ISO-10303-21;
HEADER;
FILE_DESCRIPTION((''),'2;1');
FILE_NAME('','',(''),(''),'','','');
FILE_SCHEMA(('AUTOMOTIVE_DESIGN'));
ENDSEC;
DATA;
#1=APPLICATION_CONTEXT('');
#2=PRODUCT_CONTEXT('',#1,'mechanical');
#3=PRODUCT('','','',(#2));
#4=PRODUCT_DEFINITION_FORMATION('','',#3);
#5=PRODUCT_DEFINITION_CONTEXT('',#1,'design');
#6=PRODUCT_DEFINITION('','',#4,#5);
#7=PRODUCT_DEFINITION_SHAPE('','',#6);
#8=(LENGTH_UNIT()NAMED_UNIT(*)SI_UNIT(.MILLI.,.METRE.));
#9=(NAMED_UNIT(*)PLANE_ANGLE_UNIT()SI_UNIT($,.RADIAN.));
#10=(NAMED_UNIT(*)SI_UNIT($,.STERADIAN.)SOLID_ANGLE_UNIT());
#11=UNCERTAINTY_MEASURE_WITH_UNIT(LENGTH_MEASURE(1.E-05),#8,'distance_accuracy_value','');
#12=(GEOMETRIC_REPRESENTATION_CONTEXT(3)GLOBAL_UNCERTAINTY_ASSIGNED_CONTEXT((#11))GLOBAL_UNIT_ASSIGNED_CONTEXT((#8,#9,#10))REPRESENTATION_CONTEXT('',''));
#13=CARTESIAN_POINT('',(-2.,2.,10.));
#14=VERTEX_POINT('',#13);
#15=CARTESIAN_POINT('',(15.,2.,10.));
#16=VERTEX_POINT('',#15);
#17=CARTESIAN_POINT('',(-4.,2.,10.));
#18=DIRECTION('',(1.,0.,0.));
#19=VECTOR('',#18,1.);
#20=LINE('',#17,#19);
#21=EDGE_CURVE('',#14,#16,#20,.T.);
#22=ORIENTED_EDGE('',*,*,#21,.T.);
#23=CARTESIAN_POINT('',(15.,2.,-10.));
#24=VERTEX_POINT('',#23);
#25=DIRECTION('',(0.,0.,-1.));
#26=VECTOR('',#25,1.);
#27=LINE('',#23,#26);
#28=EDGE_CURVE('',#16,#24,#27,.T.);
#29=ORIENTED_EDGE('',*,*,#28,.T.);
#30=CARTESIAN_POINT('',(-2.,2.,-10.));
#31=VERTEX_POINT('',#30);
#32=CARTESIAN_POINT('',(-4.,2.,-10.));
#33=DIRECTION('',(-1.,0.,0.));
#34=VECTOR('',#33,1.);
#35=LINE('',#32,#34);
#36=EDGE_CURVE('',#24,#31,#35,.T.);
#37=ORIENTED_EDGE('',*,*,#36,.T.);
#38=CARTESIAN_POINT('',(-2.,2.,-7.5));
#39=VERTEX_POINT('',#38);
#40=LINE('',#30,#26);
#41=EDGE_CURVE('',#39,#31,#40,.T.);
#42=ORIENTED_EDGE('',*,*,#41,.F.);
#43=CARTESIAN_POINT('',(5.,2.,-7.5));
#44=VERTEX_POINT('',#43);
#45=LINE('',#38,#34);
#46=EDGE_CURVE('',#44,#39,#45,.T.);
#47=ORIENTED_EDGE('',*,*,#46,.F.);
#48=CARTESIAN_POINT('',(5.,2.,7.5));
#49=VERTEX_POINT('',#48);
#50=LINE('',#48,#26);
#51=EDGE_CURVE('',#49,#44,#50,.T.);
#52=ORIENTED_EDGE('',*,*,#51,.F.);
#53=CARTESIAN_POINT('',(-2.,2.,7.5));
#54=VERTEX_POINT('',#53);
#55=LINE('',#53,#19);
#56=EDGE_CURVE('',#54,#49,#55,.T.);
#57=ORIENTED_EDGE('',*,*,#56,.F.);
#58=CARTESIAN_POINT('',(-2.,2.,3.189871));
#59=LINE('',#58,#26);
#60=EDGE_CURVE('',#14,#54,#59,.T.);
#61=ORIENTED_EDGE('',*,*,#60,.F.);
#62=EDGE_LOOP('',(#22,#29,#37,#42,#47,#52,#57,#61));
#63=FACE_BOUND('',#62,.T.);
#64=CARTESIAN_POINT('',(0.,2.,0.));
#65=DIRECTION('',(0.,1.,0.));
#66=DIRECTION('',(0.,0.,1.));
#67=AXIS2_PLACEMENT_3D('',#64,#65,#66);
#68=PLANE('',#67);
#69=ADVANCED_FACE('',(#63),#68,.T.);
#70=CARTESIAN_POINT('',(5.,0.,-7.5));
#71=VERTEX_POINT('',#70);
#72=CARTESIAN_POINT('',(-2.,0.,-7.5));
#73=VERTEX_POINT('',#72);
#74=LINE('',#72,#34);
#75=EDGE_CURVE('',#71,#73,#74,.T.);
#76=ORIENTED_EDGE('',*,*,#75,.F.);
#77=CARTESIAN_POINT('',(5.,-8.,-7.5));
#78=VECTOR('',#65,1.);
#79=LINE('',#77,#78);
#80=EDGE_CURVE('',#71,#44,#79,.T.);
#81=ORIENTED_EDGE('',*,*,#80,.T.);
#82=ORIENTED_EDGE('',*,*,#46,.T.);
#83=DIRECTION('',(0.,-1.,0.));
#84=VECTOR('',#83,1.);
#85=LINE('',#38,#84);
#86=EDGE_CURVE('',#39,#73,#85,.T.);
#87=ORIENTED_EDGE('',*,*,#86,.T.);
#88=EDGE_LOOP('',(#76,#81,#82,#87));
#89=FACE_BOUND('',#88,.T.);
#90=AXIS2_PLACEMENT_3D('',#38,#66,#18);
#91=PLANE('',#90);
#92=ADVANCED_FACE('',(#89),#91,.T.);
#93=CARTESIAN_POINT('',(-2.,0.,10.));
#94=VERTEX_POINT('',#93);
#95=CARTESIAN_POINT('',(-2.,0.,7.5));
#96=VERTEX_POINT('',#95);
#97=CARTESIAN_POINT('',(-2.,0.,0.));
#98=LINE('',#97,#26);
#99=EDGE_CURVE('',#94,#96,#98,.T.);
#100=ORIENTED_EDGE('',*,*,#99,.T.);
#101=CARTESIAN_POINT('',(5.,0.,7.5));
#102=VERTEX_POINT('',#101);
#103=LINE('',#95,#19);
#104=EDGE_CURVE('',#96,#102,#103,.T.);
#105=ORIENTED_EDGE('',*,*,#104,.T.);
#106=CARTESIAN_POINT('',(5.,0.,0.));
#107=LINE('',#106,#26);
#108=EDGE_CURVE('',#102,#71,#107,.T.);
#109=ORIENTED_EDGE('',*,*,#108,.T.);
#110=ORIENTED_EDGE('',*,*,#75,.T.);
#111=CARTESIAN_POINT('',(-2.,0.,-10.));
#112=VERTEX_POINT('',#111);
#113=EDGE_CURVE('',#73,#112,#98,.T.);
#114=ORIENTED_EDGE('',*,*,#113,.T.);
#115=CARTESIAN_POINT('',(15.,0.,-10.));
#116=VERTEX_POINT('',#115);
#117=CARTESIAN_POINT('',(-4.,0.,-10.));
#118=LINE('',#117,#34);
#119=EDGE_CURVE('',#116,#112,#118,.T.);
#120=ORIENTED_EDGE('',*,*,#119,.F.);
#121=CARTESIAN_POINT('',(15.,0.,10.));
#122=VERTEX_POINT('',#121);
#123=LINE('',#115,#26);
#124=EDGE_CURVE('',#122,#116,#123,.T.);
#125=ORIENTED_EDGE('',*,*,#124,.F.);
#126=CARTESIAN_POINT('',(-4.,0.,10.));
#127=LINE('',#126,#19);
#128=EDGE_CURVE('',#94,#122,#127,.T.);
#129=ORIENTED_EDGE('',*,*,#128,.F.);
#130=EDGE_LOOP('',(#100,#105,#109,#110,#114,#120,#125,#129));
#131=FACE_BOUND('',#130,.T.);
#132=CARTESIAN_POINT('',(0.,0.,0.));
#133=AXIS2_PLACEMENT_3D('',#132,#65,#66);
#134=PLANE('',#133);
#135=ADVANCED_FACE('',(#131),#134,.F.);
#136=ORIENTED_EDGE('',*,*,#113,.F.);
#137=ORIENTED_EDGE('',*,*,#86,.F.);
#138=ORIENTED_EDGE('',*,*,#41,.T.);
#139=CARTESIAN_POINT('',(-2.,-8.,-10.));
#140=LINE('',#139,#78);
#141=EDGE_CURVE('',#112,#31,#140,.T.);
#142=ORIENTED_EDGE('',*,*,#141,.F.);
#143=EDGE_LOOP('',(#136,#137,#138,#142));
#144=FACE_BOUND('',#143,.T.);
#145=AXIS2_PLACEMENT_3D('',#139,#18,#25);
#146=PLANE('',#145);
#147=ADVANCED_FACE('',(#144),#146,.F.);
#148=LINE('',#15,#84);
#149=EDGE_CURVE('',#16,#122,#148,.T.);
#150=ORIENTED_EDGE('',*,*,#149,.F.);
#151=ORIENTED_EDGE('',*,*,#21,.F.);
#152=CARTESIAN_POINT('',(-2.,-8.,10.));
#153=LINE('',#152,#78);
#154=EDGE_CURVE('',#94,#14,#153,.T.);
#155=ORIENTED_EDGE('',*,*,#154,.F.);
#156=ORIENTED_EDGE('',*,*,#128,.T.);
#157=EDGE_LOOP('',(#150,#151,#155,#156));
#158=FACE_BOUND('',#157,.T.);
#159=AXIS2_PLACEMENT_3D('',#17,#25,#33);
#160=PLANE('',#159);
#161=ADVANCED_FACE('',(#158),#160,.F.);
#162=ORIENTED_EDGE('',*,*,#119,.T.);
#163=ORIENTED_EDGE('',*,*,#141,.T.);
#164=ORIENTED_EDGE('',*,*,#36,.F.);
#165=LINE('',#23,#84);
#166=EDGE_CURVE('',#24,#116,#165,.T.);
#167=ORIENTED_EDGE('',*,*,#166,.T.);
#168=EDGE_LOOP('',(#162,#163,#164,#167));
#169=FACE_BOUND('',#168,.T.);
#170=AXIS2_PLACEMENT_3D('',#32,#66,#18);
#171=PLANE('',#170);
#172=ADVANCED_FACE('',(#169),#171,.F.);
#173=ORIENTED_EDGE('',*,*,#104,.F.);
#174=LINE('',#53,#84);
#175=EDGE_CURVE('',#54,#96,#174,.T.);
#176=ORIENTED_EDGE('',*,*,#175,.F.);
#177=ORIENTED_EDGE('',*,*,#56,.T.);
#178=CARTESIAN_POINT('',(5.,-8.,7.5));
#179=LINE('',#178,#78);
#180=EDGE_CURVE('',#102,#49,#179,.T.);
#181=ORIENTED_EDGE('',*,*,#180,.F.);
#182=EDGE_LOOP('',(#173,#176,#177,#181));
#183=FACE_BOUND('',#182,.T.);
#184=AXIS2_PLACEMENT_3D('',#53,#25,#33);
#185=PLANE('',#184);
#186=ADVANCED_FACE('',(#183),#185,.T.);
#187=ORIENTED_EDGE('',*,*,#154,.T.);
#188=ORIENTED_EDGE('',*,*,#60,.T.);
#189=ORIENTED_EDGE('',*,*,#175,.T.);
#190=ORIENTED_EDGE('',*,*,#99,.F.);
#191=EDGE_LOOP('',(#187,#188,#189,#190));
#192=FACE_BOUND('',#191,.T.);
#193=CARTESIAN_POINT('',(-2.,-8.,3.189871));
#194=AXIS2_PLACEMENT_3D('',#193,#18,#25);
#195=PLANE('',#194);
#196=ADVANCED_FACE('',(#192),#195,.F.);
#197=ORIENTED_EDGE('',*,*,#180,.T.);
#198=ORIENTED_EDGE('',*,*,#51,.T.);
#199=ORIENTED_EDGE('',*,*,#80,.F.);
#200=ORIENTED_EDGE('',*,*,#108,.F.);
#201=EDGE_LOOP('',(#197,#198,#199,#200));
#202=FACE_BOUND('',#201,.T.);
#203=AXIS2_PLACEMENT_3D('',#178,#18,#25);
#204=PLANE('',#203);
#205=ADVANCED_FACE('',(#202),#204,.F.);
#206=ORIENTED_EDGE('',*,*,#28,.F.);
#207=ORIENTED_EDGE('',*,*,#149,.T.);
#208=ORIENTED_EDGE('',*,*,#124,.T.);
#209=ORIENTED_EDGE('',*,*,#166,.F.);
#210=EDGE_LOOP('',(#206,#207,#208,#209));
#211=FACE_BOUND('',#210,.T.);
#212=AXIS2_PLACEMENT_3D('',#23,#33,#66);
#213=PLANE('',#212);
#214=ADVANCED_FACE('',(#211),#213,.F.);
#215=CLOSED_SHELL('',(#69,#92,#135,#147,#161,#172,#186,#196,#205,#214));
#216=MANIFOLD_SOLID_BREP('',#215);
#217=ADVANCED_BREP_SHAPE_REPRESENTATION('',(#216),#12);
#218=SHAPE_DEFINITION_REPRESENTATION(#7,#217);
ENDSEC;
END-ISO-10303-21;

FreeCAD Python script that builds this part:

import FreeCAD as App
import Part
import Sketcher
from FreeCAD import Vector

doc = App.newDocument("Part")
params = doc.addObject("Spreadsheet::Sheet", "Params")
for row, (alias, value) in enumerate([
    ("sketch1_width", "19 mm"),
    ("sketch1_width2", "2 mm"),
    ("sketch1_height", "20 mm"),
    ("sketch1_height2", "5 mm"),
    ("pad1_length", "2 mm"),
    ("sketch2_width", "5 mm"),
    ("sketch2_height", "15 mm"),
    ("pocket1_length", "10 mm"),
    ("sketch3_width", "2 mm"),
    ("sketch3_height", "20 mm"),
    ("pocket2_length", "10 mm"),
], start=1):
    params.set(f"A{row}", alias)
    params.set(f"B{row}", "=" + value)
    params.setAlias(f"B{row}", alias)

body = doc.addObject("PartDesign::Body", "Body")

# Sketch on XZ plane
sketch1 = body.newObject("Sketcher::SketchObject", "Sketch")
sketch1.AttachmentSupport = (doc.getObject("XZ_Plane"), [""])
sketch1.MapMode = "FlatFace"
sketch1.addGeometry([
    Part.LineSegment(Vector(-4, -10, 0), Vector(-4, 10, 0)),  # 0
    Part.LineSegment(Vector(-4, 10, 0), Vector(15, 10, 0)),  # 1
    Part.LineSegment(Vector(15, 10, 0), Vector(15, -10, 0)),  # 2
    Part.LineSegment(Vector(15, -10, 0), Vector(-4, -10, 0)),  # 3
    Part.LineSegment(Vector(0, 7.5, 0), Vector(-2, 7.5, 0)),  # 4
    Part.LineSegment(Vector(-2, 7.5, 0), Vector(-2, 2.5, 0)),  # 5
    Part.LineSegment(Vector(-2, 2.5, 0), Vector(0, 2.5, 0)),  # 6
    Part.LineSegment(Vector(0, 2.5, 0), Vector(0, 7.5, 0)),  # 7
    Part.LineSegment(Vector(0, -2.5, 0), Vector(-2, -2.5, 0)),  # 8
    Part.LineSegment(Vector(-2, -2.5, 0), Vector(-2, -7.5, 0)),  # 9
    Part.LineSegment(Vector(-2, -7.5, 0), Vector(0, -7.5, 0)),  # 10
    Part.LineSegment(Vector(0, -7.5, 0), Vector(0, -2.5, 0)),  # 11
], False)
sketch1.addConstraint([
    Sketcher.Constraint("Coincident", 0, 2, 1, 1),
    Sketcher.Constraint("Coincident", 1, 2, 2, 1),
    Sketcher.Constraint("Coincident", 2, 2, 3, 1),
    Sketcher.Constraint("Coincident", 3, 2, 0, 1),
    Sketcher.Constraint("Coincident", 4, 2, 5, 1),
    Sketcher.Constraint("Coincident", 5, 2, 6, 1),
    Sketcher.Constraint("Coincident", 6, 2, 7, 1),
    Sketcher.Constraint("Coincident", 7, 2, 4, 1),
    Sketcher.Constraint("Coincident", 8, 2, 9, 1),
    Sketcher.Constraint("Coincident", 9, 2, 10, 1),
    Sketcher.Constraint("Coincident", 10, 2, 11, 1),
    Sketcher.Constraint("Coincident", 11, 2, 8, 1),
    Sketcher.Constraint("Vertical", 0),
    Sketcher.Constraint("Horizontal", 1),
    Sketcher.Constraint("Vertical", 2),
    Sketcher.Constraint("Horizontal", 3),
    Sketcher.Constraint("Horizontal", 4),
    Sketcher.Constraint("Vertical", 5),
    Sketcher.Constraint("Horizontal", 6),
    Sketcher.Constraint("Vertical", 7),
    Sketcher.Constraint("Horizontal", 8),
    Sketcher.Constraint("Vertical", 9),
    Sketcher.Constraint("Horizontal", 10),
    Sketcher.Constraint("Vertical", 11),
    Sketcher.Constraint("Symmetric", 7, 2, 10, 2, -1, 1),
    Sketcher.Constraint("Symmetric", 5, 2, 8, 2, -1),
    Sketcher.Constraint("PointOnObject", 6, 2, -2),
    Sketcher.Constraint("DistanceX", 1, 1, 1, 2, 19.0),
    Sketcher.Constraint("DistanceX", 4, 2, 4, 1, 2.0),
    Sketcher.Constraint("DistanceY", 0, 1, 0, 2, 20.0),
    Sketcher.Constraint("DistanceY", 5, 2, 5, 1, 5.0),
    Sketcher.Constraint("DistanceX", 0, 2, -1, 1, 4.0),
    Sketcher.Constraint("DistanceY", -1, 1, 0, 2, 10.0),
    Sketcher.Constraint("DistanceY", 8, 2, 5, 2, 5.0),
])
sketch1.setExpression("Constraints[27]", "Params.sketch1_width")
sketch1.setExpression("Constraints[28]", "Params.sketch1_width2")
sketch1.setExpression("Constraints[29]", "Params.sketch1_height")
sketch1.setExpression("Constraints[30]", "Params.sketch1_height2")
pad1 = body.newObject("PartDesign::Pad", "Pad")
pad1.Profile = sketch1
pad1.setExpression("Length", "Params.pad1_length")
pad1.Reversed = True

# Sketch on XZ plane
sketch2 = body.newObject("Sketcher::SketchObject", "Sketch001")
sketch2.AttachmentSupport = (doc.getObject("XZ_Plane"), [""])
sketch2.MapMode = "FlatFace"
sketch2.AttachmentOffset = App.Placement(Vector(0, 0, -2), App.Rotation())
sketch2.addGeometry([
    Part.LineSegment(Vector(0, -8, 0), Vector(0, 8, 0)),
    Part.LineSegment(Vector(0, 8, 0), Vector(5, 8, 0)),
    Part.LineSegment(Vector(5, 8, 0), Vector(5, -8, 0)),
    Part.LineSegment(Vector(5, -8, 0), Vector(0, -8, 0)),
], False)
sketch2.addConstraint([
    Sketcher.Constraint("Coincident", 0, 2, 1, 1),
    Sketcher.Constraint("Coincident", 1, 2, 2, 1),
    Sketcher.Constraint("Coincident", 2, 2, 3, 1),
    Sketcher.Constraint("Coincident", 3, 2, 0, 1),
    Sketcher.Constraint("Vertical", 0),
    Sketcher.Constraint("Horizontal", 1),
    Sketcher.Constraint("Vertical", 2),
    Sketcher.Constraint("Horizontal", 3),
    Sketcher.Constraint("Symmetric", 0, 2, 3, 2, -1, 1),
    Sketcher.Constraint("DistanceX", 1, 1, 1, 2, 5.0),
    Sketcher.Constraint("DistanceY", 0, 1, 0, 2, 15.0),
])
sketch2.setExpression("Constraints[9]", "Params.sketch2_width")
sketch2.setExpression("Constraints[10]", "Params.sketch2_height")
pocket1 = body.newObject("PartDesign::Pocket", "Pocket")
pocket1.Profile = sketch2
pocket1.setExpression("Length", "Params.pocket1_length")
pocket1.Reversed = True

# Sketch on XZ plane
sketch3 = body.newObject("Sketcher::SketchObject", "Sketch002")
sketch3.AttachmentSupport = (doc.getObject("XZ_Plane"), [""])
sketch3.MapMode = "FlatFace"
sketch3.AttachmentOffset = App.Placement(Vector(0, 0, -2), App.Rotation())
sketch3.addGeometry([
    Part.LineSegment(Vector(-2, -10, 0), Vector(-4, -10, 0)),  # 0
    Part.LineSegment(Vector(-4, -10, 0), Vector(-4, 10, 0)),  # 1
    Part.LineSegment(Vector(-4, 10, 0), Vector(-2, 10, 0)),  # 2
    Part.LineSegment(Vector(-2, 10, 0), Vector(-2, 3.2, 0)),  # 3
    Part.LineSegment(Vector(-2, 3.2, 0), Vector(1.5, 3.2, 0)),  # 4
    Part.LineSegment(Vector(1.5, 3.2, 0), Vector(1.5, -3.9, 0)),  # 5
    Part.LineSegment(Vector(1.5, -3.9, 0), Vector(-2, -3.9, 0)),  # 6
    Part.LineSegment(Vector(-2, -3.9, 0), Vector(-2, -10, 0)),  # 7
], False)
sketch3.addConstraint([
    Sketcher.Constraint("Coincident", 0, 2, 1, 1),
    Sketcher.Constraint("Coincident", 1, 2, 2, 1),
    Sketcher.Constraint("Coincident", 2, 2, 3, 1),
    Sketcher.Constraint("Coincident", 3, 2, 4, 1),
    Sketcher.Constraint("Coincident", 4, 2, 5, 1),
    Sketcher.Constraint("Coincident", 5, 2, 6, 1),
    Sketcher.Constraint("Coincident", 6, 2, 7, 1),
    Sketcher.Constraint("Coincident", 7, 2, 0, 1),
    Sketcher.Constraint("Horizontal", 0),
    Sketcher.Constraint("Vertical", 1),
    Sketcher.Constraint("Horizontal", 2),
    Sketcher.Constraint("Vertical", 3),
    Sketcher.Constraint("Horizontal", 4),
    Sketcher.Constraint("Vertical", 5),
    Sketcher.Constraint("Horizontal", 6),
    Sketcher.Constraint("Vertical", 7),
    Sketcher.Constraint("Symmetric", 2, 2, 7, 2, -1),
    Sketcher.Constraint("DistanceX", 0, 2, 0, 1, 2.0),
    Sketcher.Constraint("DistanceY", 1, 1, 1, 2, 20.0),
    Sketcher.Constraint("DistanceX", 0, 2, -1, 1, 4.0),
    Sketcher.Constraint("DistanceY", 3, 2, 3, 1, 6.810129),
    Sketcher.Constraint("DistanceY", 7, 2, 7, 1, 6.107628),
    Sketcher.Constraint("DistanceX", 4, 1, 4, 2, 3.539536),
])
sketch3.setExpression("Constraints[17]", "Params.sketch3_width")
sketch3.setExpression("Constraints[18]", "Params.sketch3_height")
pocket2 = body.newObject("PartDesign::Pocket", "Pocket001")
pocket2.Profile = sketch3
pocket2.setExpression("Length", "Params.pocket2_length")
pocket2.Reversed = True

doc.recompute()
